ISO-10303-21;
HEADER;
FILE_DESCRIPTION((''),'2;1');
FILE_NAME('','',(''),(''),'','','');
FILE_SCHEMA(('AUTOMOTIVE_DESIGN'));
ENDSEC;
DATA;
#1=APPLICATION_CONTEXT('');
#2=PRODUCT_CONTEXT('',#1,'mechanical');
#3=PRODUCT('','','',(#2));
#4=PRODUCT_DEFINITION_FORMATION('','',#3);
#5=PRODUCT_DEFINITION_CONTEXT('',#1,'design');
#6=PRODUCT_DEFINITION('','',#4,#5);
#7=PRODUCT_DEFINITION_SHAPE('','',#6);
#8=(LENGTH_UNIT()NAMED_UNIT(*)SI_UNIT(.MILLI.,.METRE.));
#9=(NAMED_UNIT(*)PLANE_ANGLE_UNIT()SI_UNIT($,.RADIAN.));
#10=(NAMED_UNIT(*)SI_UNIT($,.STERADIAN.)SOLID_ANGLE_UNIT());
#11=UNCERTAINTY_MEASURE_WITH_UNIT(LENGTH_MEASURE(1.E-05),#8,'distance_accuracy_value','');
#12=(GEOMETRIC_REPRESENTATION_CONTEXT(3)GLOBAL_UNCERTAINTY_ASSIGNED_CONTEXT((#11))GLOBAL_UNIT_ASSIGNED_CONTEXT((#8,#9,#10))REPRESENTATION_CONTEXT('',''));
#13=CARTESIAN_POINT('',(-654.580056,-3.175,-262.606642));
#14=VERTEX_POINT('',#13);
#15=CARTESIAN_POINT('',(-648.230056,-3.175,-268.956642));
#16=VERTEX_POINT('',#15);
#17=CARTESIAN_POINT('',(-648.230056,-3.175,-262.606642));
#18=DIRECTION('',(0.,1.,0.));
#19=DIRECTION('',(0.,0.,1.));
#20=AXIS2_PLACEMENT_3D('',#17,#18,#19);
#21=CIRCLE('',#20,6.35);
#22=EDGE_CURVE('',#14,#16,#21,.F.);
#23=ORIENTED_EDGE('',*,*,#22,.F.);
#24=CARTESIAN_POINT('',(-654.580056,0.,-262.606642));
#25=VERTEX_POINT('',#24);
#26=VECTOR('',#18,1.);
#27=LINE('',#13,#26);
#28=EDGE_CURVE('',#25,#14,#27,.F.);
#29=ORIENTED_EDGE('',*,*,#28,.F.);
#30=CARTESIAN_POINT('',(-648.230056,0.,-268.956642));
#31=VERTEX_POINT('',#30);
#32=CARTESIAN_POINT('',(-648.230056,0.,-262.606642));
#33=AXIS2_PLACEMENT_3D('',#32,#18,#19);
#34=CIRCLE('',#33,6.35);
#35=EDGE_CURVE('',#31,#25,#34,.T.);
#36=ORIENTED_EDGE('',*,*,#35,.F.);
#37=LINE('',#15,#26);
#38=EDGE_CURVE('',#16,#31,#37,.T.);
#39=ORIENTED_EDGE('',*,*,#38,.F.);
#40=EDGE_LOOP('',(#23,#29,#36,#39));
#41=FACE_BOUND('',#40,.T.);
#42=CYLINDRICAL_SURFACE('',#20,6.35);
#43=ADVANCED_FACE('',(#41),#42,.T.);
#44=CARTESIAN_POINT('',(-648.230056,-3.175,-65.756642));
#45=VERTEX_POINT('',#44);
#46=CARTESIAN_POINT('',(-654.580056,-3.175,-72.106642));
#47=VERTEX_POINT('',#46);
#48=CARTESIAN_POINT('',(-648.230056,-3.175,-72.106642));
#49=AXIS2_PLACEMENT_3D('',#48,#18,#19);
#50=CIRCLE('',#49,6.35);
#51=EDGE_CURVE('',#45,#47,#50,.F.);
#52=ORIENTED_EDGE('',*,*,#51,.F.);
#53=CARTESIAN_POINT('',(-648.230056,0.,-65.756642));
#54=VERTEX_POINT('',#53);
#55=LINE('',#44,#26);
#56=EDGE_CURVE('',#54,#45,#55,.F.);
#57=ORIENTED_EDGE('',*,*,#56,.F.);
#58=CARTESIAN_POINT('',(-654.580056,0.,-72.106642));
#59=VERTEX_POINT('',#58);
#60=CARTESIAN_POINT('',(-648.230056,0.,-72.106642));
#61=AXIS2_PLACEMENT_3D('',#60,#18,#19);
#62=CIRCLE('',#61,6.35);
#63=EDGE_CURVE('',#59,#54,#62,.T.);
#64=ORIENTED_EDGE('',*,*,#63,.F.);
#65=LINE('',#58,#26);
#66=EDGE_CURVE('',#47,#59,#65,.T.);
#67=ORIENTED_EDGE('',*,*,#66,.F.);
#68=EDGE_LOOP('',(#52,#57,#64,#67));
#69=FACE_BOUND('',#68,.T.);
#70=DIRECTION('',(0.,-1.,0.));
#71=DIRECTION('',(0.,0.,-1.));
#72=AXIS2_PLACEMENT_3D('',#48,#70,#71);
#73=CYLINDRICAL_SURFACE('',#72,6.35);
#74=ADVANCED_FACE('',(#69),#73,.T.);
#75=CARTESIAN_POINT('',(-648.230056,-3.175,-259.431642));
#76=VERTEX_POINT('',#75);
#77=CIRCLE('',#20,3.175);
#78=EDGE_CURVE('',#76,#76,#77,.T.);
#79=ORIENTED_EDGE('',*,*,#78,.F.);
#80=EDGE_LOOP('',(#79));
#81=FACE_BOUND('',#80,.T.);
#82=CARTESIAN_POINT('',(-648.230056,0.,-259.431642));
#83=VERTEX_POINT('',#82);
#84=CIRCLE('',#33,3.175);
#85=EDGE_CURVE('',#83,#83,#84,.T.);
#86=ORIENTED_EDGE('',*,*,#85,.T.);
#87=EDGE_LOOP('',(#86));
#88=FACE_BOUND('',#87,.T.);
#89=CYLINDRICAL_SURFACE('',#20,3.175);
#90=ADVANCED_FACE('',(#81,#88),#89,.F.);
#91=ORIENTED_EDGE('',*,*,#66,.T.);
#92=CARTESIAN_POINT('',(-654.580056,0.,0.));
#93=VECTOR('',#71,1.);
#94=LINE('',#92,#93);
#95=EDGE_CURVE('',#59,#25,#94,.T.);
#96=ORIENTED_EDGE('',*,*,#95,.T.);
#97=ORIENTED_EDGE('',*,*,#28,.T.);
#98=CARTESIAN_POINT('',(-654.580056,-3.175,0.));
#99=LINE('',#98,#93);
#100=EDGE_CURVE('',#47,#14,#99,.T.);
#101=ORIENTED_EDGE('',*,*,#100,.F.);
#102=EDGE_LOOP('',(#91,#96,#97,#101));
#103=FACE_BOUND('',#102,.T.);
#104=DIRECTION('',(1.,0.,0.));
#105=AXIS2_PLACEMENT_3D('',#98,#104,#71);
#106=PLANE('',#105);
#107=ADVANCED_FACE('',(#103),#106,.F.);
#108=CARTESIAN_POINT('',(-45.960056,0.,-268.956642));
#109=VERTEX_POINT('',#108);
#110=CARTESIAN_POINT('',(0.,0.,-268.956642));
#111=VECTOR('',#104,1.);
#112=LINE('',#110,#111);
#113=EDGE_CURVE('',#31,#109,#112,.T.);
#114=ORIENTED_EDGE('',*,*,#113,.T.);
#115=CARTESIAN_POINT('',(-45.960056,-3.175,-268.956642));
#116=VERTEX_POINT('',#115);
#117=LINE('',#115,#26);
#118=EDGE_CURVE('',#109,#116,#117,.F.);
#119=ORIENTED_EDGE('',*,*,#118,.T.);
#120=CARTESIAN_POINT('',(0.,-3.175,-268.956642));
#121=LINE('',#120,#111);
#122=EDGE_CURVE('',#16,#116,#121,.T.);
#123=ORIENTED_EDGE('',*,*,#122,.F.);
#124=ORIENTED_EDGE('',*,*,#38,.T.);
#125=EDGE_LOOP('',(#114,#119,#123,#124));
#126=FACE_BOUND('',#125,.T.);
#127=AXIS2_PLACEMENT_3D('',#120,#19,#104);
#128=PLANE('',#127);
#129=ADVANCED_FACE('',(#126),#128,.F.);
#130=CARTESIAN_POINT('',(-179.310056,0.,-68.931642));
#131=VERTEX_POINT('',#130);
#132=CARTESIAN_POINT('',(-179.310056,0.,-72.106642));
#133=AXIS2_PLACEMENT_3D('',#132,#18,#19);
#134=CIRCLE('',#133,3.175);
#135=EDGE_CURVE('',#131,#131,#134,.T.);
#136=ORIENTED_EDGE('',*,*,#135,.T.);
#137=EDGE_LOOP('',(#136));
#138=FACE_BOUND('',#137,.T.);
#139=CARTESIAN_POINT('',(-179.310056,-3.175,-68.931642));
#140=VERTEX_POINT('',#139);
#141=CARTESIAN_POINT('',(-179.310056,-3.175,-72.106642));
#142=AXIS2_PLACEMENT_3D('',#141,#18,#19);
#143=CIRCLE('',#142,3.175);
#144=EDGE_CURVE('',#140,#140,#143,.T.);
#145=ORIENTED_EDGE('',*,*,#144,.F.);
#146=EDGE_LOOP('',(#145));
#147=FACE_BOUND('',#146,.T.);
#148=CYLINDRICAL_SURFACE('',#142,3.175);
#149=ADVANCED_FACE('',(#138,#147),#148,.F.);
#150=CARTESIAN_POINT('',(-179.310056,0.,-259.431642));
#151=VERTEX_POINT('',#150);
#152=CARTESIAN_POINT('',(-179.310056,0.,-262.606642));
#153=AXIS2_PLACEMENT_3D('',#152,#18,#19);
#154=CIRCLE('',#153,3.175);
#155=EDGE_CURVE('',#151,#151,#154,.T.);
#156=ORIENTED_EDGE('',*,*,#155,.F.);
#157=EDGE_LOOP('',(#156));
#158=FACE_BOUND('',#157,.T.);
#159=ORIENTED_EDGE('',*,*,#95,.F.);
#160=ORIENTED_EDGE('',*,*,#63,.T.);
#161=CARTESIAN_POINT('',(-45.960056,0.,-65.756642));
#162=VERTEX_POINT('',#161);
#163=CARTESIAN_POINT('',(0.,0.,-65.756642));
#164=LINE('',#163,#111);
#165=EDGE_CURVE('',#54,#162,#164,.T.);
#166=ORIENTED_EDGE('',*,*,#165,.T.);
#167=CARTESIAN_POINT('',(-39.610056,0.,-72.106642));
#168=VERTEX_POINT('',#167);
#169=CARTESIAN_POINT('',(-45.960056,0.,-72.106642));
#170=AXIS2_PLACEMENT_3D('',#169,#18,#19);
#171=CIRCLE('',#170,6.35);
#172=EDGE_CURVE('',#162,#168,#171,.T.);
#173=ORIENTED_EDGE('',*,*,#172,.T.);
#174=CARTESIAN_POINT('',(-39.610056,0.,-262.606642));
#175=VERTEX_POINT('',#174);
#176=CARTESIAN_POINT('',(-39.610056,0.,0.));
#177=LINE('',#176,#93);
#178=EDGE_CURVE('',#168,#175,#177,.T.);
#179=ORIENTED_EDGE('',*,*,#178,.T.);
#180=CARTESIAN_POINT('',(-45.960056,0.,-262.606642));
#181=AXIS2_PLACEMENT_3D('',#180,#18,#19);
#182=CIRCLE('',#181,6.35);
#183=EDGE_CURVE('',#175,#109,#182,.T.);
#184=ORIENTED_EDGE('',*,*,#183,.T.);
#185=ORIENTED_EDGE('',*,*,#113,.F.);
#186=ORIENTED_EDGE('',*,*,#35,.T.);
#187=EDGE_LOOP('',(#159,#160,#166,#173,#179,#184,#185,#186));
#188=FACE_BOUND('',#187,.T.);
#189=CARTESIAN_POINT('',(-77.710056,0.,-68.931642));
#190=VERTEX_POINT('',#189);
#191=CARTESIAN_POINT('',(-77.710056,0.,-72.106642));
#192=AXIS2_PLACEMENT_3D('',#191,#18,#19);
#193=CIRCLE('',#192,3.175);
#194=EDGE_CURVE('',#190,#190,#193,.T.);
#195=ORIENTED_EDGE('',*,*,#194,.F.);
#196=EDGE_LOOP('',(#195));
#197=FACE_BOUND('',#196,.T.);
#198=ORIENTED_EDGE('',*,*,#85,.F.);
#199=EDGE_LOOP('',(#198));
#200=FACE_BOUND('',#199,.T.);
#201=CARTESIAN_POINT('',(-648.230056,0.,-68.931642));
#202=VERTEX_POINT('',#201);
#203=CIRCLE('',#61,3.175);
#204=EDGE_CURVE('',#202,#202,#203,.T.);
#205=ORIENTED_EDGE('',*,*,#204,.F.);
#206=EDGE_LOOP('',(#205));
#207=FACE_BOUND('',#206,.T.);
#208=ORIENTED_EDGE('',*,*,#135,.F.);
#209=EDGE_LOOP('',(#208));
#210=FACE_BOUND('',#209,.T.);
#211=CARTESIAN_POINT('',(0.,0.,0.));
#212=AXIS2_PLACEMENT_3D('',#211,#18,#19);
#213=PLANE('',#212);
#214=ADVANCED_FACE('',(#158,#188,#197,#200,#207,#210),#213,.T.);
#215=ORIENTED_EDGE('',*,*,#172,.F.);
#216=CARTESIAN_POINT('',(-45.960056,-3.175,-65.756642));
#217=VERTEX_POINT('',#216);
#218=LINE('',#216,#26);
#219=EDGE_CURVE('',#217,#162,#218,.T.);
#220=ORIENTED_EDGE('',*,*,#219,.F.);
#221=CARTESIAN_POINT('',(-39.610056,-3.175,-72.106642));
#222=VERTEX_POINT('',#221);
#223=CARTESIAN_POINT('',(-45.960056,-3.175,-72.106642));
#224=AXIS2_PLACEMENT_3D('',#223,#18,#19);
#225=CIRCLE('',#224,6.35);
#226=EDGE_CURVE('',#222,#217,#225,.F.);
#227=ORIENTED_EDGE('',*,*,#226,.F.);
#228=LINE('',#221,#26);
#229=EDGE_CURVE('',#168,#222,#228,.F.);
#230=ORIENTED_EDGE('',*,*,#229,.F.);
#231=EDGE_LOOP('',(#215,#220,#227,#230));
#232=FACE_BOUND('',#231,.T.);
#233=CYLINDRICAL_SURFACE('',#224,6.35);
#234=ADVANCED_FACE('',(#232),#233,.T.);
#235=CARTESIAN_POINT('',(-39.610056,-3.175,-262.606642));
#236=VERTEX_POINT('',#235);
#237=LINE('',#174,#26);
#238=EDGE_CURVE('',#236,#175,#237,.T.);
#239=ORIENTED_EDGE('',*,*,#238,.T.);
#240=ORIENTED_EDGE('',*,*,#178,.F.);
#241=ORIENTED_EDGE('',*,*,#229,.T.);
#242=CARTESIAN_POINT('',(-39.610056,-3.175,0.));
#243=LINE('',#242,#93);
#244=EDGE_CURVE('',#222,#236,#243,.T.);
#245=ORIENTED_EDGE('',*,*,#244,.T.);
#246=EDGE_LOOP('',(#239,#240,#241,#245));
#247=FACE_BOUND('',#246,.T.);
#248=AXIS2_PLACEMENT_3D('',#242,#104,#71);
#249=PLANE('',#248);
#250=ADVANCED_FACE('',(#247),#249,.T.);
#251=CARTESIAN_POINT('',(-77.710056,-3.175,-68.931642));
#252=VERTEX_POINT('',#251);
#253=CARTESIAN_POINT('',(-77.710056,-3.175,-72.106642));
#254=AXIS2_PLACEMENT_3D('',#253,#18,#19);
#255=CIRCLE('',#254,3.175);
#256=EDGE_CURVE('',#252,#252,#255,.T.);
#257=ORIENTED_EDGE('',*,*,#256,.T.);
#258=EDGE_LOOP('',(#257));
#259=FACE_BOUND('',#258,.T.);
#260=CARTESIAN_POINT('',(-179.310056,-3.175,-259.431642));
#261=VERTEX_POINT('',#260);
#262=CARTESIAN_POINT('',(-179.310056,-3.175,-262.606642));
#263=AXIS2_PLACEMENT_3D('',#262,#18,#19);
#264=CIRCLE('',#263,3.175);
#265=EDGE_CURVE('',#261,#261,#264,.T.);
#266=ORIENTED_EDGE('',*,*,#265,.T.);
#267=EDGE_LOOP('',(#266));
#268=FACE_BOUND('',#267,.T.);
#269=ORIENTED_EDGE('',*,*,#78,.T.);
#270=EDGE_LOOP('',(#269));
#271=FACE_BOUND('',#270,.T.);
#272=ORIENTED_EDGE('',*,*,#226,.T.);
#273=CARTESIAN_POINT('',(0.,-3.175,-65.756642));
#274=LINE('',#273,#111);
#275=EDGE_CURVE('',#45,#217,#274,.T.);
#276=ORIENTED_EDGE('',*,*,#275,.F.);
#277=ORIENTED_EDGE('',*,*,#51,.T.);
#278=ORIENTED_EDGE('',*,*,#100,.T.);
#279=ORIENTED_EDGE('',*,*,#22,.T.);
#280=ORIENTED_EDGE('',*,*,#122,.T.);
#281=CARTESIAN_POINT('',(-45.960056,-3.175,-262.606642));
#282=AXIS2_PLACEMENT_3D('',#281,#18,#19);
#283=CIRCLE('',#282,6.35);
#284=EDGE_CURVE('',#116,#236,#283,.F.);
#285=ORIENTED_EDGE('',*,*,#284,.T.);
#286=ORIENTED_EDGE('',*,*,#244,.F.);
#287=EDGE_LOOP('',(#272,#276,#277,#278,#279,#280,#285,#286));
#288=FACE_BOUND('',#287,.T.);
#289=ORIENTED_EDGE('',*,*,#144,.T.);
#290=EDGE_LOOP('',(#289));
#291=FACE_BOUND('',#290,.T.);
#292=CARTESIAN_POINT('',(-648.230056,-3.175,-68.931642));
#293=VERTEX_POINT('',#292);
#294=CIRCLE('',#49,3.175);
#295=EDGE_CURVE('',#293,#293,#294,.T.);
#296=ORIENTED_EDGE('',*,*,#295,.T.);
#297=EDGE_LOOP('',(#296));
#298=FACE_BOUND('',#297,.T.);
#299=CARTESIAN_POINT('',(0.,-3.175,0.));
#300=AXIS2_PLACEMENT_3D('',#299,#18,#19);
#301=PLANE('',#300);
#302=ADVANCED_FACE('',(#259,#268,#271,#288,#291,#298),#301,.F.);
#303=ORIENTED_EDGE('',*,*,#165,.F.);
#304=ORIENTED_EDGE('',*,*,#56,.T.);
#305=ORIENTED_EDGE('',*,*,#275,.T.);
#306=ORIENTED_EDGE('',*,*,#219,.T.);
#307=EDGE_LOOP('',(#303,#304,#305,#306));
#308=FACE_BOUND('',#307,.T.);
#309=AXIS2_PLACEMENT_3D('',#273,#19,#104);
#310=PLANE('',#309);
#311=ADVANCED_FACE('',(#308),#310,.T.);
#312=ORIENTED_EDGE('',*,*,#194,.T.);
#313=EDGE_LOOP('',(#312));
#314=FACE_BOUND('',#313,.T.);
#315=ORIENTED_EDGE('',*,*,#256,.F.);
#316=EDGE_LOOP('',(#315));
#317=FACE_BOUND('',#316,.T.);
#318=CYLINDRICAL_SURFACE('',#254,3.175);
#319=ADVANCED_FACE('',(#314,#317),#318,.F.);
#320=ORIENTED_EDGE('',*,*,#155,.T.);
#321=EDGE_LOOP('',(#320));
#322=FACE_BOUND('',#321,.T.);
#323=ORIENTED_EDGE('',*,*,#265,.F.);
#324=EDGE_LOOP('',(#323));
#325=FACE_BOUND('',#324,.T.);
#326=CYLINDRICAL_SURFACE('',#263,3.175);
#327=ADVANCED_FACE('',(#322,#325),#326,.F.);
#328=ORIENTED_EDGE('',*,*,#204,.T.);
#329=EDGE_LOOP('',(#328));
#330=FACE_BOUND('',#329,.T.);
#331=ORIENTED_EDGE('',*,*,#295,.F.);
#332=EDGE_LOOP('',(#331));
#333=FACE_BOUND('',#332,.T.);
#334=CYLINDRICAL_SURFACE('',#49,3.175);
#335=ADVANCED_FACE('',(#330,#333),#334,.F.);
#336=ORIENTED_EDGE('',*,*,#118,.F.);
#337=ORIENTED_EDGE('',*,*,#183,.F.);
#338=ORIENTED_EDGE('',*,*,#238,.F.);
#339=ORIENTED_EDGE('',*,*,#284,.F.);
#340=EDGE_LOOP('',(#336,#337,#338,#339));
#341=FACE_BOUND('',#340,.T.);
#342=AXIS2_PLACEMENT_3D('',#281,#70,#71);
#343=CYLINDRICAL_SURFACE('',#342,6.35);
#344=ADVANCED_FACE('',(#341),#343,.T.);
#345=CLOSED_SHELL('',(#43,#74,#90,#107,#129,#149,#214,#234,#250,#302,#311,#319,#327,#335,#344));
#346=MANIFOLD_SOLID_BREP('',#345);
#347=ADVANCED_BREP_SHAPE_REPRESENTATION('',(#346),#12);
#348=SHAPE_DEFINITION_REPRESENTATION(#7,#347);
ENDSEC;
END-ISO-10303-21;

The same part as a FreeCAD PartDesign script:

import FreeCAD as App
import Part
import Sketcher

V = App.Vector
Q = App.Units.Quantity


def edges_at(feature, points):
    """Names of the edges that pass closest to the given points."""
    edges = feature.Shape.Edges
    near = lambda p: min(range(len(edges)), key=lambda i: edges[i].distToShape(Part.Vertex(*p))[0])
    return sorted({f"Edge{near(p) + 1}" for p in points})

doc = App.newDocument("Part")
body = doc.addObject("PartDesign::Body", "Body")

# Sketch on XZ plane
sketch1 = body.newObject("Sketcher::SketchObject", "Sketch")
sketch1.AttachmentSupport = (doc.getObject("XZ_Plane"), [""])
sketch1.MapMode = "FlatFace"
sketch1.addGeometry([
    Part.LineSegment(V(-654.6, -269, 0), V(-654.6, -65.8, 0)),  # 0
    Part.LineSegment(V(-654.6, -65.8, 0), V(-39.6, -65.8, 0)),  # 1
    Part.LineSegment(V(-39.6, -65.8, 0), V(-39.6, -269, 0)),  # 2
    Part.LineSegment(V(-39.6, -269, 0), V(-654.6, -269, 0)),  # 3
    Part.Circle(V(-648.2, -72.1, 0), V(0, 0, 1), 3.2),  # 4
    Part.Circle(V(-179.3, -72.1, 0), V(0, 0, 1), 3.2),  # 5
    Part.Circle(V(-77.7, -72.1, 0), V(0, 0, 1), 3.2),  # 6
    Part.Circle(V(-648.2, -262.6, 0), V(0, 0, 1), 3.2),  # 7
    Part.Circle(V(-179.3, -262.6, 0), V(0, 0, 1), 3.2),  # 8
], False)
sketch1.addConstraint([
    Sketcher.Constraint("Coincident", 0, 2, 1, 1),
    Sketcher.Constraint("Coincident", 1, 2, 2, 1),
    Sketcher.Constraint("Coincident", 2, 2, 3, 1),
    Sketcher.Constraint("Coincident", 3, 2, 0, 1),
    Sketcher.Constraint("Vertical", 0),
    Sketcher.Constraint("Horizontal", 1),
    Sketcher.Constraint("Vertical", 2),
    Sketcher.Constraint("Horizontal", 3),
    Sketcher.Constraint("Equal", 4, 5),
    Sketcher.Constraint("Equal", 5, 6),
    Sketcher.Constraint("Equal", 6, 7),
    Sketcher.Constraint("Equal", 7, 8),
    Sketcher.Constraint("Horizontal", 4, 3, 5, 3),
    Sketcher.Constraint("Horizontal", 5, 3, 6, 3),
    Sketcher.Constraint("Horizontal", 7, 3, 8, 3),
    Sketcher.Constraint("Vertical", 4, 3, 7, 3),
    Sketcher.Constraint("Vertical", 5, 3, 8, 3),
    Sketcher.Constraint("Diameter", 4, Q("0.25 in")),
    Sketcher.Constraint("DistanceY", 0, 1, 0, 2, Q("8 in")),
    Sketcher.Constraint("DistanceX", 5, 3, 6, 3, Q("4 in")),
    Sketcher.Constraint("DistanceY", 7, 3, 4, 3, Q("7.5 in")),
    Sketcher.Constraint("DistanceX", 6, 3, 1, 2, Q("1.5 in")),
    Sketcher.Constraint("DistanceX", 0, 2, 4, 3, Q("0.25 in")),
    Sketcher.Constraint("DistanceY", 4, 3, 0, 2, Q("0.25 in")),
    Sketcher.Constraint("DistanceX", 1, 1, 1, 2, Q("614.97 mm")),
    Sketcher.Constraint("DistanceX", 4, 3, -1, 1, Q("648.230056 mm")),
    Sketcher.Constraint("DistanceY", 4, 3, -1, 1, Q("72.106642 mm")),
])
pad1 = body.newObject("PartDesign::Pad", "Pad")
pad1.Profile = sketch1
pad1.Length = Q("0.125 in")
doc.recompute()

fillet = body.newObject("PartDesign::Fillet", "Fillet")
fillet.Base = (pad1, edges_at(pad1, [
    (-654.58, -1.587, -65.757),
    (-654.58, -1.587, -268.957),
    (-39.61, -1.587, -268.957),
    (-39.61, -1.587, -65.757),
]))
fillet.Radius = Q("0.25 in")

doc.recompute()
